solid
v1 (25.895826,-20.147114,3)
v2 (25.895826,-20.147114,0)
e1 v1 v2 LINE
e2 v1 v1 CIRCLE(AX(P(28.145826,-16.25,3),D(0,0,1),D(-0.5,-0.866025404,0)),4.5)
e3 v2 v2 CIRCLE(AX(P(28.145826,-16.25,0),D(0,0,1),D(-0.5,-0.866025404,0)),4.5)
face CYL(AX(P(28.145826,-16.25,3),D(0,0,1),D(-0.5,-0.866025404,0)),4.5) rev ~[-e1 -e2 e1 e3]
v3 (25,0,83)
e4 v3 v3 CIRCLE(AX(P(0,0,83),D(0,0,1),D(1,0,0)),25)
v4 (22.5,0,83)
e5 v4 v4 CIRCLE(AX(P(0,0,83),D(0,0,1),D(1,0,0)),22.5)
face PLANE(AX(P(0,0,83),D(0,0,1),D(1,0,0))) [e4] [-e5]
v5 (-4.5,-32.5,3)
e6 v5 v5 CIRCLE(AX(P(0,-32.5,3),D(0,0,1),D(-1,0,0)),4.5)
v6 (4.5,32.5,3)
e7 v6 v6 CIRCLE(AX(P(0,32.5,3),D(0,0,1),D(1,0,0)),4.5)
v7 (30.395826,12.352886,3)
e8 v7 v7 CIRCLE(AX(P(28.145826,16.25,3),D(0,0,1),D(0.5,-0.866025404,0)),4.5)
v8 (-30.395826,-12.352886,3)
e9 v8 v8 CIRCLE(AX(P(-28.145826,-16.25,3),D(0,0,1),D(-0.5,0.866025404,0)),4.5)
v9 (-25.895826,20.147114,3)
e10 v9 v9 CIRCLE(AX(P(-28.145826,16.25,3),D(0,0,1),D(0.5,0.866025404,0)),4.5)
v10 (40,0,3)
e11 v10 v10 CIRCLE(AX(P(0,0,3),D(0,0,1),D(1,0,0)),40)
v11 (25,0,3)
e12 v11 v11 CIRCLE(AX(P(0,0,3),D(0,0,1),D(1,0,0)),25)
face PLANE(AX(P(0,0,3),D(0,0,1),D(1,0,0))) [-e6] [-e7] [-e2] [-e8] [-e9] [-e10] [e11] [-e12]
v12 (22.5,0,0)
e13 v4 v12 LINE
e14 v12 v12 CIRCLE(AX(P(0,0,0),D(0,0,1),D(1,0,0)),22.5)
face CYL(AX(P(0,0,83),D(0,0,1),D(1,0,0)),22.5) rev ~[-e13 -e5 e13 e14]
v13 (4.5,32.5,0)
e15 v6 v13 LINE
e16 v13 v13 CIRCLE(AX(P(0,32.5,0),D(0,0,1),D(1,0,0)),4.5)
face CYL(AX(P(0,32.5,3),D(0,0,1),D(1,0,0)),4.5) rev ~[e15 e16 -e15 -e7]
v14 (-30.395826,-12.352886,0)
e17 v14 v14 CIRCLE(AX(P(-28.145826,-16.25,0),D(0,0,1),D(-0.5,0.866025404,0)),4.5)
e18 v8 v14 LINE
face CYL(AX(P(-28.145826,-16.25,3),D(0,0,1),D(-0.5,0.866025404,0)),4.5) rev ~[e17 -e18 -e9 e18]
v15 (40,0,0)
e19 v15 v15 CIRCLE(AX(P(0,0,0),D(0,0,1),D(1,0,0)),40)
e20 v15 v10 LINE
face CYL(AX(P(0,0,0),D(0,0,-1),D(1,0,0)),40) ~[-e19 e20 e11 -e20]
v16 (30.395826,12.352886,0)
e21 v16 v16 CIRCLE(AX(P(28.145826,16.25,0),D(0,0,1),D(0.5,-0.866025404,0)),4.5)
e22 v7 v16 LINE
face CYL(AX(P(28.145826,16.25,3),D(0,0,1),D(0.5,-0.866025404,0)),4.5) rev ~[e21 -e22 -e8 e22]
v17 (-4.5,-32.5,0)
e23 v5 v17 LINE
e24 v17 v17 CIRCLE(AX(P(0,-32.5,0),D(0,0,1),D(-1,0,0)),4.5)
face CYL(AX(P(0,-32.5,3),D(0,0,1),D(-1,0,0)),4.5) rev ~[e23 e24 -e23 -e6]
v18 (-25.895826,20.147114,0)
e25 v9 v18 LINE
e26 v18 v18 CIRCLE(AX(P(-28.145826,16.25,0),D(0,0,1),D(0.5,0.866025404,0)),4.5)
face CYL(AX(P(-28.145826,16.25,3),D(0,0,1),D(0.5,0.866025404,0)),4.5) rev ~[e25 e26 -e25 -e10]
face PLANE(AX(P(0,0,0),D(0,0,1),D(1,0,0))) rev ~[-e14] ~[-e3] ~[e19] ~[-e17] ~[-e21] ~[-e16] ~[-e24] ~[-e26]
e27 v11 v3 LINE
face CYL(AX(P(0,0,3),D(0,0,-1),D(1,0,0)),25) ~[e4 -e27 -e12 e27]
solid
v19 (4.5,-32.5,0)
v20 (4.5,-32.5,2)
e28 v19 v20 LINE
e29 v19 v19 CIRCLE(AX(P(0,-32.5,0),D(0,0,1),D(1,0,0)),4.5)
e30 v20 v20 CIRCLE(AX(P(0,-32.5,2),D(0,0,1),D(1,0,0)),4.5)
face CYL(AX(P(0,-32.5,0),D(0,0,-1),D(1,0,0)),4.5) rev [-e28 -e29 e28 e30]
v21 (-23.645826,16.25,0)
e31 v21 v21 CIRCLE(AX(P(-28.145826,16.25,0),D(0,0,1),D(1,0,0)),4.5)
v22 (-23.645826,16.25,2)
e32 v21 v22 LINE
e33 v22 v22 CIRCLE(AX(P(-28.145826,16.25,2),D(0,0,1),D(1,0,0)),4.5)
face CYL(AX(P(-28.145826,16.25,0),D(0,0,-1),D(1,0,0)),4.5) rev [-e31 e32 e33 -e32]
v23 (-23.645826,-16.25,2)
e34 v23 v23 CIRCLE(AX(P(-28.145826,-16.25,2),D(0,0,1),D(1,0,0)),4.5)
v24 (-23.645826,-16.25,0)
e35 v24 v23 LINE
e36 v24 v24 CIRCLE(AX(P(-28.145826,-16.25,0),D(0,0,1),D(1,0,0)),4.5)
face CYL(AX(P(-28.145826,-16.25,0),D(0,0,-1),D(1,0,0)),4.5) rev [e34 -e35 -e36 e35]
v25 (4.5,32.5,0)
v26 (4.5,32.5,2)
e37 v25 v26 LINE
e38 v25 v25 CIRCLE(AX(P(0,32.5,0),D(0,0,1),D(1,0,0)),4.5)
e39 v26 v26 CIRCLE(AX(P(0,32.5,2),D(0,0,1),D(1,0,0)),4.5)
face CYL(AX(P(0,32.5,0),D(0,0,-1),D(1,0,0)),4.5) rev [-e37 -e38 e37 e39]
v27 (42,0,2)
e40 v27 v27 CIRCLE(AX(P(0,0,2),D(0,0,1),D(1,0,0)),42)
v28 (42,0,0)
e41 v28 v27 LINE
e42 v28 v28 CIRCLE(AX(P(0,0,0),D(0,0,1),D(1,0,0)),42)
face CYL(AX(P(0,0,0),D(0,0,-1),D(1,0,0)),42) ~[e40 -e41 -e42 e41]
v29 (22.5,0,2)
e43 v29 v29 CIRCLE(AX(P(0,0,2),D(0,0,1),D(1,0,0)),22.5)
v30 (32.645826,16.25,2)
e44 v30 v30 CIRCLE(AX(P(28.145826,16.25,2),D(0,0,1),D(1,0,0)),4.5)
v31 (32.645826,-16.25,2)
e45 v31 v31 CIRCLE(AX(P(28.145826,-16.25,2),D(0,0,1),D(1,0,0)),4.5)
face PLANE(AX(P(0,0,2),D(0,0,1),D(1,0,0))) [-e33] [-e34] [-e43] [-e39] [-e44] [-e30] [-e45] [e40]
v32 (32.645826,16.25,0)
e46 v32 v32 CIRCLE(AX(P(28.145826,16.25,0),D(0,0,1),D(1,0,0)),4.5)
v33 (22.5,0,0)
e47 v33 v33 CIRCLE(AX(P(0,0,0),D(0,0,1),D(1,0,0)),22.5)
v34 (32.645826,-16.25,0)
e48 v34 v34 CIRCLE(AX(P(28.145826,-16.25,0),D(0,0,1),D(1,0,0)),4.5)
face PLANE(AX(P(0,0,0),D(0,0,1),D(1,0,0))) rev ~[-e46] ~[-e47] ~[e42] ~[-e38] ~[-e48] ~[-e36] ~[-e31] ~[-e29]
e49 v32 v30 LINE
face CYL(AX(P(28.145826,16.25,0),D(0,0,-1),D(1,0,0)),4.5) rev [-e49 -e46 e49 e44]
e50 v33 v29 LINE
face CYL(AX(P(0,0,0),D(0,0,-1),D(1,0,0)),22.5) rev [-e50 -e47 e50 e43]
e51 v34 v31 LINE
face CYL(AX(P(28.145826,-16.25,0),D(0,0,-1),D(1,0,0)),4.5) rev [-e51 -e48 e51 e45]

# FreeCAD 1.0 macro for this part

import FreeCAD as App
import Part
import Sketcher

V = App.Vector
Q = App.Units.Quantity

doc = App.newDocument("Part")
body = doc.addObject("PartDesign::Body", "Body")

# Sketch on XY plane
sketch1 = doc.addObject("Sketcher::SketchObject", "Sketch")
body.addObject(sketch1)
sketch1.AttachmentSupport = (doc.XY_Plane, [""])
sketch1.MapMode = "FlatFace"
sketch1.addGeometry(Part.Circle(V(0, 0, 0), V(0, 0, 1), 40), False)
sketch1.addConstraint([
    Sketcher.Constraint("Coincident", 0, 3, -1, 1),
    Sketcher.Constraint("Diameter", 0, Q("80 mm")),
])
pad1 = doc.addObject("PartDesign::Pad", "Pad")
body.addObject(pad1)
pad1.Profile = sketch1
pad1.Length = 3

# Sketch on XY plane
sketch2 = doc.addObject("Sketcher::SketchObject", "Sketch001")
body.addObject(sketch2)
sketch2.AttachmentSupport = (doc.XY_Plane, [""])
sketch2.MapMode = "FlatFace"
sketch2.AttachmentOffset = App.Placement(V(0, 0, 3), App.Rotation())
sketch2.addGeometry(Part.Circle(V(0, 0, 0), V(0, 0, 1), 25), False)
sketch2.addConstraint([
    Sketcher.Constraint("Coincident", 0, 3, -1, 1),
    Sketcher.Constraint("Diameter", 0, Q("50 mm")),
])
pad2 = doc.addObject("PartDesign::Pad", "Pad001")
body.addObject(pad2)
pad2.Profile = sketch2
pad2.Length = 80

# Sketch on XY plane
sketch3 = doc.addObject("Sketcher::SketchObject", "Sketch002")
body.addObject(sketch3)
sketch3.AttachmentSupport = (doc.XY_Plane, [""])
sketch3.MapMode = "FlatFace"
sketch3.AttachmentOffset = App.Placement(V(0, 0, 83), App.Rotation())
sketch3.addGeometry(Part.Circle(V(0, 0, 0), V(0, 0, 1), 22), False)
sketch3.addConstraint([
    Sketcher.Constraint("Coincident", 0, 3, -1, 1),
    Sketcher.Constraint("Diameter", 0, Q("45 mm")),
])
pocket1 = doc.addObject("PartDesign::Pocket", "Pocket")
body.addObject(pocket1)
pocket1.Profile = sketch3
pocket1.Type = "ThroughAll"

# Sketch on XY plane
sketch4 = doc.addObject("Sketcher::SketchObject", "Sketch003")
body.addObject(sketch4)
sketch4.AttachmentSupport = (doc.XY_Plane, [""])
sketch4.MapMode = "FlatFace"
sketch4.AttachmentOffset = App.Placement(V(0, 0, 3), App.Rotation())
sketch4.addGeometry(Part.Circle(V(0, 32.5, 0), V(0, 0, 1), 4.5), False)
sketch4.addConstraint([
    Sketcher.Constraint("PointOnObject", 0, 3, -2),
    Sketcher.Constraint("Diameter", 0, Q("9 mm")),
    Sketcher.Constraint("DistanceY", -1, 1, 0, 3, Q("32.5 mm")),
])
pocket2 = doc.addObject("PartDesign::Pocket", "Pocket001")
body.addObject(pocket2)
pocket2.Profile = sketch4
pocket2.Type = "ThroughAll"
doc.recompute()

polarpattern = doc.addObject("PartDesign::PolarPattern", "PolarPattern")
body.addObject(polarpattern)
polarpattern.Originals = [pocket2]
polarpattern.Axis = (doc.Z_Axis, [""])
polarpattern.Angle = 360
polarpattern.Occurrences = 6
body.Tip = polarpattern
body2 = doc.addObject("PartDesign::Body", "Body001")

# Sketch on XY plane
sketch5 = doc.addObject("Sketcher::SketchObject", "Sketch004")
body2.addObject(sketch5)
sketch5.AttachmentSupport = (doc.getObject("XY_Plane001"), [""])
sketch5.MapMode = "FlatFace"
sketch5.addGeometry([
    Part.Circle(V(0, 0, 0), V(0, 0, 1), 42),  # 0
    Part.Circle(V(-28.1, -16.2, 0), V(0, 0, 1), 4.5),  # 1
    Part.Circle(V(0, -32.5, 0), V(0, 0, 1), 4.5),  # 2
    Part.Circle(V(28.1, -16.2, 0), V(0, 0, 1), 4.5),  # 3
    Part.Circle(V(-28.1, 16.2, 0), V(0, 0, 1), 4.5),  # 4
    Part.Circle(V(0, 0, 0), V(0, 0, 1), 22.5),  # 5
    Part.Circle(V(28.1, 16.2, 0), V(0, 0, 1), 4.5),  # 6
    Part.Circle(V(0, 32.5, 0), V(0, 0, 1), 4.5),  # 7
], False)
sketch5.addConstraint([
    Sketcher.Constraint("Coincident", 0, 3, -1, 1),
    Sketcher.Constraint("Coincident", 5, 3, -1, 1),
    Sketcher.Constraint("Equal", 1, 2),
    Sketcher.Constraint("Equal", 2, 3),
    Sketcher.Constraint("Equal", 3, 4),
    Sketcher.Constraint("Equal", 4, 6),
    Sketcher.Constraint("Equal", 6, 7),
    Sketcher.Constraint("Symmetric", 3, 3, 4, 3, -1, 1),
    Sketcher.Constraint("Symmetric", 1, 3, 6, 3, -1, 1),
    Sketcher.Constraint("Symmetric", 2, 3, 7, 3, -1, 1),
    Sketcher.Constraint("Symmetric", 1, 3, 3, 3, -2),
    Sketcher.Constraint("PointOnObject", 2, 3, -2),
    Sketcher.Constraint("Diameter", 0, Q("84 mm")),
    Sketcher.Constraint("Diameter", 1, Q("9 mm")),
    Sketcher.Constraint("Diameter", 5, Q("45 mm")),
    Sketcher.Constraint("DistanceY", 2, 3, -1, 1, Q("32.5 mm")),
    Sketcher.Constraint("DistanceY", 1, 3, 4, 3, Q("32.5 mm")),
    Sketcher.Constraint("DistanceX", 1, 3, -1, 1, Q("28.145826 mm")),
])
pad3 = doc.addObject("PartDesign::Pad", "Pad002")
body2.addObject(pad3)
pad3.Profile = sketch5
pad3.Length = 2

doc.recompute()
